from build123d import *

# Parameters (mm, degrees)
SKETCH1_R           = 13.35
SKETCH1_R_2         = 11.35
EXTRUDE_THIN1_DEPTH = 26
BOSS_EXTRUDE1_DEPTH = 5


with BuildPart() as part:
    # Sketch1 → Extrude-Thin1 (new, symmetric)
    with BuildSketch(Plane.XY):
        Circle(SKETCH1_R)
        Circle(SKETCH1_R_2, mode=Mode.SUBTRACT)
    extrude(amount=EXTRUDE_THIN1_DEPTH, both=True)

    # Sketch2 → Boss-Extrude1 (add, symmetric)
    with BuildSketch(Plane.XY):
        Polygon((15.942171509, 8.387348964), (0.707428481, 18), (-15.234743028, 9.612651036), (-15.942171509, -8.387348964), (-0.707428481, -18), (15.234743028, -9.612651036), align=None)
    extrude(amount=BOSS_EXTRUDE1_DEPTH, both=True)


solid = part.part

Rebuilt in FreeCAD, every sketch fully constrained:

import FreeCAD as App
import Part
import Sketcher

V = App.Vector
Q = App.Units.Quantity

doc = App.newDocument("Part")
body = doc.addObject("PartDesign::Body", "Body")

sketch1 = body.newObject("Sketcher::SketchObject", "Sketch")
sketch1.AttachmentSupport = (doc.getObject("XY_Plane"), [""])
sketch1.MapMode = "FlatFace"
sketch1.addGeometry(Part.Circle(V(0, 0, 0), V(0, 0, 1), 13), False)
sketch1.addGeometry(Part.Circle(V(0, 0, 0), V(0, 0, 1), 11), False)
sketch1.addConstraint(Sketcher.Constraint("Coincident", 0, 3, -1, 1))
sketch1.addConstraint(Sketcher.Constraint("Coincident", 1, 3, -1, 1))
sketch1.addConstraint(Sketcher.Constraint("Diameter", 0, Q("26.7 mm")))
sketch1.addConstraint(Sketcher.Constraint("Diameter", 1, Q("22.7 mm")))
pad1 = body.newObject("PartDesign::Pad", "Pad")
pad1.Profile = sketch1
pad1.Length = 52
pad1.Midplane = True

sketch2 = body.newObject("Sketcher::SketchObject", "Sketch001")
sketch2.AttachmentSupport = (doc.getObject("XY_Plane"), [""])
sketch2.MapMode = "FlatFace"
sketch2.addGeometry(Part.LineSegment(V(16, 8, 0), V(1, 18, 0)), False)
sketch2.addGeometry(Part.LineSegment(V(1, 18, 0), V(-15, 10, 0)), False)
sketch2.addGeometry(Part.LineSegment(V(-15, 10, 0), V(-16, -8, 0)), False)
sketch2.addGeometry(Part.LineSegment(V(-16, -8, 0), V(-1, -18, 0)), False)
sketch2.addGeometry(Part.LineSegment(V(-1, -18, 0), V(15, -10, 0)), False)
sketch2.addGeometry(Part.LineSegment(V(15, -10, 0), V(16, 8, 0)), False)
sketch2.addConstraint(Sketcher.Constraint("Coincident", 0, 2, 1, 1))
sketch2.addConstraint(Sketcher.Constraint("Coincident", 1, 2, 2, 1))
sketch2.addConstraint(Sketcher.Constraint("Coincident", 2, 2, 3, 1))
sketch2.addConstraint(Sketcher.Constraint("Coincident", 3, 2, 4, 1))
sketch2.addConstraint(Sketcher.Constraint("Coincident", 4, 2, 5, 1))
sketch2.addConstraint(Sketcher.Constraint("Coincident", 5, 2, 0, 1))
sketch2.addConstraint(Sketcher.Constraint("Symmetric", 0, 2, 3, 2, -1, 1))
sketch2.addConstraint(Sketcher.Constraint("Symmetric", 1, 2, 4, 2, -1, 1))
sketch2.addConstraint(Sketcher.Constraint("Symmetric", 2, 2, 5, 2, -1, 1))
sketch2.addConstraint(Sketcher.Constraint("Equal", 0, 1))
sketch2.addConstraint(Sketcher.Constraint("Equal", 1, 2))
sketch2.addConstraint(Sketcher.Constraint("DistanceY", -1, 1, 0, 2, Q("18 mm")))
sketch2.addConstraint(Sketcher.Constraint("DistanceY", 2, 2, 1, 2, Q("18 mm")))
sketch2.addConstraint(Sketcher.Constraint("DistanceX", 2, 2, 0, 2, Q("16.6496 mm")))
sketch2.addConstraint(Sketcher.Constraint("DistanceX", -1, 1, 0, 2, Q("0.707428 mm")))
pad2 = body.newObject("PartDesign::Pad", "Pad001")
pad2.Profile = sketch2
pad2.Length = 10
pad2.Midplane = True

doc.recompute()
